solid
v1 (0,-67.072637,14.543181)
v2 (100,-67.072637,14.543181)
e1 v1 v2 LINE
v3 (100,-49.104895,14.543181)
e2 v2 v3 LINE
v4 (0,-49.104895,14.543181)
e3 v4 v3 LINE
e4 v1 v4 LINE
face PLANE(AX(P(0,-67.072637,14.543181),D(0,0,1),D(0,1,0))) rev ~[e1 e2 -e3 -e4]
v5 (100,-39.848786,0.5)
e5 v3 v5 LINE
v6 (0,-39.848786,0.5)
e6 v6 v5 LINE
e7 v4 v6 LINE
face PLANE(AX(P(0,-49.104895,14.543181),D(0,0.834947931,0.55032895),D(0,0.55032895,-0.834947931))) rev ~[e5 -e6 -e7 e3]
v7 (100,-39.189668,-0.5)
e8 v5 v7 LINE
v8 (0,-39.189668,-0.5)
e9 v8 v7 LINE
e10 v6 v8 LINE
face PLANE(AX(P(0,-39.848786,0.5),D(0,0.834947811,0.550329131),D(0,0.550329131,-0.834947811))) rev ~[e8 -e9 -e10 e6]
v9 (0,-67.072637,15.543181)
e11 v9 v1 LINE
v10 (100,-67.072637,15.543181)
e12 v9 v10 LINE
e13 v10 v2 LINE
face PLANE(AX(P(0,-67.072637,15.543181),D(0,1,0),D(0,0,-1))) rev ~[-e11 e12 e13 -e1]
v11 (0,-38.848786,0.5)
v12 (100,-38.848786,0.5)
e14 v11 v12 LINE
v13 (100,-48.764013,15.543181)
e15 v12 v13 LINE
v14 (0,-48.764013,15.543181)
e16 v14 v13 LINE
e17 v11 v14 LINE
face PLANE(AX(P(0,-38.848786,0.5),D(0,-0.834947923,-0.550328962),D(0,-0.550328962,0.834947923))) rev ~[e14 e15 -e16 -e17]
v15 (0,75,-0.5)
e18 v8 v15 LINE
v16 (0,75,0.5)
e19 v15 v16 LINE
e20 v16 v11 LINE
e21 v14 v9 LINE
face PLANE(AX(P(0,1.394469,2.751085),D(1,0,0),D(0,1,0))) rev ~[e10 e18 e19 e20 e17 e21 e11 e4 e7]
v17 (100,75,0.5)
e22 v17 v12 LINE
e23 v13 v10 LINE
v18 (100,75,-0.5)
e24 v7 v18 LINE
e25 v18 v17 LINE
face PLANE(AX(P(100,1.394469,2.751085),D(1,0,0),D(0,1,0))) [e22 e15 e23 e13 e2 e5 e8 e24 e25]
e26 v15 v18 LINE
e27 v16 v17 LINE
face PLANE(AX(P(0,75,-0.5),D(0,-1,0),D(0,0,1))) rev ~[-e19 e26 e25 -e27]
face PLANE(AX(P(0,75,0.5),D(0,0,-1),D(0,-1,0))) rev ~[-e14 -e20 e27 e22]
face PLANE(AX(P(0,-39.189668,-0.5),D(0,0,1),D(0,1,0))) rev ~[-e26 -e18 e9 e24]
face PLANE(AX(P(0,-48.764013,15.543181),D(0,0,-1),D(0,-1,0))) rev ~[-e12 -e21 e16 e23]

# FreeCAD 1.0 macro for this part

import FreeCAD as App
import Part
import Sketcher

doc = App.newDocument("Part")
body = doc.addObject("PartDesign::Body", "Body")

sketch1 = body.newObject("Sketcher::SketchObject", "Sketch")
sketch1.AttachmentSupport = (doc.getObject("YZ_Plane"), [""])
sketch1.MapMode = "FlatFace"
sketch1.addGeometry([
    Part.LineSegment(App.Vector(75, 0.5, 0), App.Vector(-38.8, 0.5, 0)),
    Part.LineSegment(App.Vector(-38.8, 0.5, 0), App.Vector(-48.8, 15.5, 0)),
    Part.LineSegment(App.Vector(-48.8, 15.5, 0), App.Vector(-67.1, 15.5, 0)),
    Part.LineSegment(App.Vector(-67.1, 15.5, 0), App.Vector(-67.1, 14.5, 0)),
    Part.LineSegment(App.Vector(-67.1, 14.5, 0), App.Vector(-49.1, 14.5, 0)),
    Part.LineSegment(App.Vector(-49.1, 14.5, 0), App.Vector(-39.8, 0.5, 0)),
    Part.LineSegment(App.Vector(-39.8, 0.5, 0), App.Vector(-39.2, -0.5, 0)),
    Part.LineSegment(App.Vector(-39.2, -0.5, 0), App.Vector(75, -0.5, 0)),
    Part.LineSegment(App.Vector(75, -0.5, 0), App.Vector(75, 0.5, 0)),
], False)
sketch1.addConstraint([
    Sketcher.Constraint("Coincident", 0, 2, 1, 1),
    Sketcher.Constraint("Coincident", 1, 2, 2, 1),
    Sketcher.Constraint("Coincident", 2, 2, 3, 1),
    Sketcher.Constraint("Coincident", 3, 2, 4, 1),
    Sketcher.Constraint("Coincident", 4, 2, 5, 1),
    Sketcher.Constraint("Coincident", 5, 2, 6, 1),
    Sketcher.Constraint("Coincident", 6, 2, 7, 1),
    Sketcher.Constraint("Coincident", 7, 2, 8, 1),
    Sketcher.Constraint("Coincident", 8, 2, 0, 1),
    Sketcher.Constraint("Horizontal", 0),
    Sketcher.Constraint("Horizontal", 2),
    Sketcher.Constraint("Vertical", 3),
    Sketcher.Constraint("Horizontal", 4),
    Sketcher.Constraint("Horizontal", 7),
    Sketcher.Constraint("Vertical", 8),
    Sketcher.Constraint("Parallel", 1, 5),
    Sketcher.Constraint("Parallel", 5, 6),
    Sketcher.Constraint("Horizontal", 0, 2, 5, 2),
    Sketcher.Constraint("Equal", 3, 8),
    Sketcher.Constraint("DistanceY", 3, 2, 3, 1, 1.0),
    Sketcher.Constraint("DistanceX", -1, 1, 7, 2, 75.0),
    Sketcher.Constraint("DistanceX", 5, 2, 0, 2, 1.0),
    Sketcher.Constraint("DistanceY", -1, 1, 0, 2, 0.5),
    Sketcher.Constraint("Distance", 1, 18.016909),
    Sketcher.Constraint("Distance", 5, 16.81923),
    Sketcher.Constraint("DistanceX", 0, 2, 0, 1, 113.848786),
    Sketcher.Constraint("DistanceX", 2, 2, 2, 1, 18.308624),
])
pad1 = body.newObject("PartDesign::Pad", "Pad")
pad1.Profile = sketch1
pad1.Length = 100

doc.recompute()
